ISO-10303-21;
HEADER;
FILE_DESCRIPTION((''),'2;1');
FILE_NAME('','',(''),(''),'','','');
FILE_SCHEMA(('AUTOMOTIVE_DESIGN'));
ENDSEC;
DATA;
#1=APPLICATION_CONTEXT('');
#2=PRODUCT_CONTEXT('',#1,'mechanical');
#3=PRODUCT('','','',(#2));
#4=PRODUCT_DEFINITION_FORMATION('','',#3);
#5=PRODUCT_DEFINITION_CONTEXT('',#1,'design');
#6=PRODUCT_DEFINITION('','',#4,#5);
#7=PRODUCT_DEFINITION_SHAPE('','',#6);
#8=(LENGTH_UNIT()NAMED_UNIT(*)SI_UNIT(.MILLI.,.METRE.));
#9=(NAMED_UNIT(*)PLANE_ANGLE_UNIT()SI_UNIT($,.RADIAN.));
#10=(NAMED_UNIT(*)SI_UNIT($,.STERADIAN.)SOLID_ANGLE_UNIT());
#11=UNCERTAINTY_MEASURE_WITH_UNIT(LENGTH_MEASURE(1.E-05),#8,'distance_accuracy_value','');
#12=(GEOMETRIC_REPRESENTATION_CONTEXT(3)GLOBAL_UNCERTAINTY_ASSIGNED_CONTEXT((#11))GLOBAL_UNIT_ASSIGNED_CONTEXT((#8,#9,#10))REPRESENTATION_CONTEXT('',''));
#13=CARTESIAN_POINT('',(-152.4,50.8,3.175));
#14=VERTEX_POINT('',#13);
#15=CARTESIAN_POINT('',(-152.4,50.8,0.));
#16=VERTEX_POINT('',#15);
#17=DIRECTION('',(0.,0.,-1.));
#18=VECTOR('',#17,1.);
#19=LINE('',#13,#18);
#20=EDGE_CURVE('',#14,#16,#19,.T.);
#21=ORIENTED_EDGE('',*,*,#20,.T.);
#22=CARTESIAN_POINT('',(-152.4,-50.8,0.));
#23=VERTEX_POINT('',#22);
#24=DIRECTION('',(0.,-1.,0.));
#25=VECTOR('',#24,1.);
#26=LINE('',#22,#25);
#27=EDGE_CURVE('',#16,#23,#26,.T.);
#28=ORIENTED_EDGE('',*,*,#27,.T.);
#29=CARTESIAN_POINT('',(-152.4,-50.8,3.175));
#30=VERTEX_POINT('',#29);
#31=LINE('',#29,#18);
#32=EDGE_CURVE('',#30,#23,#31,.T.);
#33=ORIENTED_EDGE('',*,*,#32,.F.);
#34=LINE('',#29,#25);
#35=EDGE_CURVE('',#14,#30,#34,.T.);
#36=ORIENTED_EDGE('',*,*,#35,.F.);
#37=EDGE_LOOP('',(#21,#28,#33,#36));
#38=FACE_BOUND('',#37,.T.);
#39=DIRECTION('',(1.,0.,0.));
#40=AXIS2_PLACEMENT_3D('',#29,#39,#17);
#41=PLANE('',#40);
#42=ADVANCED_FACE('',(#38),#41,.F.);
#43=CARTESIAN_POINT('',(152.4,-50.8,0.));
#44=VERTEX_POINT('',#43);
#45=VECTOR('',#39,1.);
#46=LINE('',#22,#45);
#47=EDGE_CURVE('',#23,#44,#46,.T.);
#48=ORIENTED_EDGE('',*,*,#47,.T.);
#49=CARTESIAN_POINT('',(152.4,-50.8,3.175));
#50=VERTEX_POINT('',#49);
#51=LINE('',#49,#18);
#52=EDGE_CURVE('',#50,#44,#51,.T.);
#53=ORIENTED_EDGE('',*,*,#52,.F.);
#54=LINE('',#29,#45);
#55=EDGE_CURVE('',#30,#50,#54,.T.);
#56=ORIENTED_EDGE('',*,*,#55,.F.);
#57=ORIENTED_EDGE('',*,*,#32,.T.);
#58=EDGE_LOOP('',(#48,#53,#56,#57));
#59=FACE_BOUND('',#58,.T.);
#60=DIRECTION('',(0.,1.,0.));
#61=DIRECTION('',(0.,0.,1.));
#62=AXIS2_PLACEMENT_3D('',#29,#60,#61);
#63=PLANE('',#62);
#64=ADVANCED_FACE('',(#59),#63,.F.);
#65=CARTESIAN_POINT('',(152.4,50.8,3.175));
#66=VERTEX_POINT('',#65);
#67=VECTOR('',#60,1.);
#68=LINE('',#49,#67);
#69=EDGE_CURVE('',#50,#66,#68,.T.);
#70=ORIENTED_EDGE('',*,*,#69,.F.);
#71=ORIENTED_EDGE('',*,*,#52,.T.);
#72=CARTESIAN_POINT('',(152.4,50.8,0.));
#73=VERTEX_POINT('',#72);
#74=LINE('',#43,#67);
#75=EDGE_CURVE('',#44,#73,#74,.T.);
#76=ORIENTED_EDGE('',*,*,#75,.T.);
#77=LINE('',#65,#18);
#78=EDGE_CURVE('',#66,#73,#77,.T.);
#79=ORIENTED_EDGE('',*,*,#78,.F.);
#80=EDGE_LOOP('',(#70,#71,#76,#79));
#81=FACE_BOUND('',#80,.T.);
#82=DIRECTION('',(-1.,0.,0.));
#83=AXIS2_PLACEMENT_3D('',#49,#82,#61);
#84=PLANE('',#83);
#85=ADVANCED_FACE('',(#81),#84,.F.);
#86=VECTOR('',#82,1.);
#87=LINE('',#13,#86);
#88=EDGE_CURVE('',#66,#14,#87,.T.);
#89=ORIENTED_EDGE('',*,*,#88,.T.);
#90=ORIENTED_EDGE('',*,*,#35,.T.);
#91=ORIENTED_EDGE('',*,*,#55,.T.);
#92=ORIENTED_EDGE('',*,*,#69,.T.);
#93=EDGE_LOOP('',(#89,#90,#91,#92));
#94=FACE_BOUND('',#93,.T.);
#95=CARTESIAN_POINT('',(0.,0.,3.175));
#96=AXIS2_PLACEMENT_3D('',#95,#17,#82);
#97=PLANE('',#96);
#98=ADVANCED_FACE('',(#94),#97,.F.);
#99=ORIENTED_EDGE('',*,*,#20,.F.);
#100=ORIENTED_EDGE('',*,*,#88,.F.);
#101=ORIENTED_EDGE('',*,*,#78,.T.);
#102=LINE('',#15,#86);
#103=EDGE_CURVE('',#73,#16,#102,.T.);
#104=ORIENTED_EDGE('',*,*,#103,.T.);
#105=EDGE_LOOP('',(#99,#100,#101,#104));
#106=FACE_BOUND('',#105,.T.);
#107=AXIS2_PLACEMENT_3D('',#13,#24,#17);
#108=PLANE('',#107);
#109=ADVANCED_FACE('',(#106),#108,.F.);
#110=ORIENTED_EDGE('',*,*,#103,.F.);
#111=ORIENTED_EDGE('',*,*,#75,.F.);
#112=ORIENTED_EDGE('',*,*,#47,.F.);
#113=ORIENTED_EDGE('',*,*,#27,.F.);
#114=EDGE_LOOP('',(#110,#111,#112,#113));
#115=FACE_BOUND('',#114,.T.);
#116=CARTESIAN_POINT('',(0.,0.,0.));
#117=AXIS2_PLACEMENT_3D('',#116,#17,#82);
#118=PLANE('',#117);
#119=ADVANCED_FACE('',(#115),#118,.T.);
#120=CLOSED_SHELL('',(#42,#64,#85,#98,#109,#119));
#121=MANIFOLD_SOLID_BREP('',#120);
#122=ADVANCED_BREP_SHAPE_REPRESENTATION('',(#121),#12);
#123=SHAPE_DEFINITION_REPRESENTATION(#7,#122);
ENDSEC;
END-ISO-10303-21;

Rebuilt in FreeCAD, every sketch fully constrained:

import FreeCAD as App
import Part
import Sketcher

V = App.Vector
Q = App.Units.Quantity


def add_polygon(sketch, points):
    """Adds a closed chain of lines whose ends are joined by coincident constraints."""
    first, n = sketch.GeometryCount, len(points)
    for a, b in zip(points, points[1:] + points[:1]):
        sketch.addGeometry(Part.LineSegment(App.Vector(*a, 0), App.Vector(*b, 0)), False)
    for i in range(n):
        sketch.addConstraint(Sketcher.Constraint("Coincident", first + i, 2, first + (i + 1) % n, 1))

doc = App.newDocument("Part")
body = doc.addObject("PartDesign::Body", "Body")

sketch1 = body.newObject("Sketcher::SketchObject", "Sketch")
sketch1.AttachmentSupport = (doc.getObject("XY_Plane"), [""])
sketch1.MapMode = "FlatFace"
add_polygon(sketch1, [(-152, 51), (-152, -51), (152, -51), (152, 51)])
sketch1.addConstraint([
    Sketcher.Constraint("Vertical", 0),
    Sketcher.Constraint("Horizontal", 1),
    Sketcher.Constraint("Vertical", 2),
    Sketcher.Constraint("Horizontal", 3),
    Sketcher.Constraint("Symmetric", 0, 2, 2, 2, -1, 1),
    Sketcher.Constraint("DistanceX", 1, 1, 1, 2, Q("12 in")),
    Sketcher.Constraint("DistanceY", 0, 2, 0, 1, Q("4 in")),
])
pad1 = body.newObject("PartDesign::Pad", "Pad")
pad1.Profile = sketch1
pad1.Length = Q("0.125 in")

doc.recompute()
